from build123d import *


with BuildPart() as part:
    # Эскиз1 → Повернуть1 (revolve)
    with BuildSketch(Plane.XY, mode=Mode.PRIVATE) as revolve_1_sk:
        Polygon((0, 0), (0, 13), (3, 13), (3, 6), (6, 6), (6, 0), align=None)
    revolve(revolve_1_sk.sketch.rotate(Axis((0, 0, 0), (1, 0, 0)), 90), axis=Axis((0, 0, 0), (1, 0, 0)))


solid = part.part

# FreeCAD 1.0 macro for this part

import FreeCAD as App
import Part
import Sketcher
Q = App.Units.Quantity


def add_polygon(sketch, points):
    """Adds a closed chain of lines whose ends are joined by coincident constraints."""
    first, n = sketch.GeometryCount, len(points)
    for a, b in zip(points, points[1:] + points[:1]):
        sketch.addGeometry(Part.LineSegment(App.Vector(*a, 0), App.Vector(*b, 0)), False)
    for i in range(n):
        sketch.addConstraint(Sketcher.Constraint("Coincident", first + i, 2, first + (i + 1) % n, 1))

doc = App.newDocument("Part")
params = doc.addObject("Spreadsheet::Sheet", "Params")
for row, (alias, value) in enumerate([
    ("sketch1_width", "6 mm"),
    ("sketch1_height", "13 mm"),
    ("revolution_angle", "360 deg"),
], start=1):
    params.set(f"A{row}", alias)
    params.set(f"B{row}", "=" + value)
    params.setAlias(f"B{row}", alias)

body = doc.addObject("PartDesign::Body", "Body")

# Sketch on XY plane
sketch1 = body.newObject("Sketcher::SketchObject", "Sketch")
sketch1.AttachmentSupport = (doc.getObject("XY_Plane"), [""])
sketch1.MapMode = "FlatFace"
add_polygon(sketch1, [(0, 13), (0, 0), (6, 0), (6, 6), (3, 6), (3, 13)])  # lines 0-5
sketch1.addConstraint([
    Sketcher.Constraint("Vertical", 0),
    Sketcher.Constraint("Horizontal", 1),
    Sketcher.Constraint("Vertical", 2),
    Sketcher.Constraint("Horizontal", 3),
    Sketcher.Constraint("Vertical", 4),
    Sketcher.Constraint("Horizontal", 5),
    Sketcher.Constraint("Coincident", 0, 2, -1, 1),
    Sketcher.Constraint("Equal", 3, 5),
    Sketcher.Constraint("Equal", 1, 2),
    Sketcher.Constraint("DistanceX", 1, 1, 1, 2, Q("6 mm")),
    Sketcher.Constraint("DistanceY", 0, 2, 0, 1, Q("13 mm")),
])
sketch1.setExpression("Constraints[15]", "Params.sketch1_width")
sketch1.setExpression("Constraints[16]", "Params.sketch1_height")
revolution = body.newObject("PartDesign::Revolution", "Revolution")
revolution.Profile = sketch1
revolution.ReferenceAxis = (sketch1, ["H_Axis"])
revolution.setExpression("Angle", "Params.revolution_angle")

doc.recompute()
